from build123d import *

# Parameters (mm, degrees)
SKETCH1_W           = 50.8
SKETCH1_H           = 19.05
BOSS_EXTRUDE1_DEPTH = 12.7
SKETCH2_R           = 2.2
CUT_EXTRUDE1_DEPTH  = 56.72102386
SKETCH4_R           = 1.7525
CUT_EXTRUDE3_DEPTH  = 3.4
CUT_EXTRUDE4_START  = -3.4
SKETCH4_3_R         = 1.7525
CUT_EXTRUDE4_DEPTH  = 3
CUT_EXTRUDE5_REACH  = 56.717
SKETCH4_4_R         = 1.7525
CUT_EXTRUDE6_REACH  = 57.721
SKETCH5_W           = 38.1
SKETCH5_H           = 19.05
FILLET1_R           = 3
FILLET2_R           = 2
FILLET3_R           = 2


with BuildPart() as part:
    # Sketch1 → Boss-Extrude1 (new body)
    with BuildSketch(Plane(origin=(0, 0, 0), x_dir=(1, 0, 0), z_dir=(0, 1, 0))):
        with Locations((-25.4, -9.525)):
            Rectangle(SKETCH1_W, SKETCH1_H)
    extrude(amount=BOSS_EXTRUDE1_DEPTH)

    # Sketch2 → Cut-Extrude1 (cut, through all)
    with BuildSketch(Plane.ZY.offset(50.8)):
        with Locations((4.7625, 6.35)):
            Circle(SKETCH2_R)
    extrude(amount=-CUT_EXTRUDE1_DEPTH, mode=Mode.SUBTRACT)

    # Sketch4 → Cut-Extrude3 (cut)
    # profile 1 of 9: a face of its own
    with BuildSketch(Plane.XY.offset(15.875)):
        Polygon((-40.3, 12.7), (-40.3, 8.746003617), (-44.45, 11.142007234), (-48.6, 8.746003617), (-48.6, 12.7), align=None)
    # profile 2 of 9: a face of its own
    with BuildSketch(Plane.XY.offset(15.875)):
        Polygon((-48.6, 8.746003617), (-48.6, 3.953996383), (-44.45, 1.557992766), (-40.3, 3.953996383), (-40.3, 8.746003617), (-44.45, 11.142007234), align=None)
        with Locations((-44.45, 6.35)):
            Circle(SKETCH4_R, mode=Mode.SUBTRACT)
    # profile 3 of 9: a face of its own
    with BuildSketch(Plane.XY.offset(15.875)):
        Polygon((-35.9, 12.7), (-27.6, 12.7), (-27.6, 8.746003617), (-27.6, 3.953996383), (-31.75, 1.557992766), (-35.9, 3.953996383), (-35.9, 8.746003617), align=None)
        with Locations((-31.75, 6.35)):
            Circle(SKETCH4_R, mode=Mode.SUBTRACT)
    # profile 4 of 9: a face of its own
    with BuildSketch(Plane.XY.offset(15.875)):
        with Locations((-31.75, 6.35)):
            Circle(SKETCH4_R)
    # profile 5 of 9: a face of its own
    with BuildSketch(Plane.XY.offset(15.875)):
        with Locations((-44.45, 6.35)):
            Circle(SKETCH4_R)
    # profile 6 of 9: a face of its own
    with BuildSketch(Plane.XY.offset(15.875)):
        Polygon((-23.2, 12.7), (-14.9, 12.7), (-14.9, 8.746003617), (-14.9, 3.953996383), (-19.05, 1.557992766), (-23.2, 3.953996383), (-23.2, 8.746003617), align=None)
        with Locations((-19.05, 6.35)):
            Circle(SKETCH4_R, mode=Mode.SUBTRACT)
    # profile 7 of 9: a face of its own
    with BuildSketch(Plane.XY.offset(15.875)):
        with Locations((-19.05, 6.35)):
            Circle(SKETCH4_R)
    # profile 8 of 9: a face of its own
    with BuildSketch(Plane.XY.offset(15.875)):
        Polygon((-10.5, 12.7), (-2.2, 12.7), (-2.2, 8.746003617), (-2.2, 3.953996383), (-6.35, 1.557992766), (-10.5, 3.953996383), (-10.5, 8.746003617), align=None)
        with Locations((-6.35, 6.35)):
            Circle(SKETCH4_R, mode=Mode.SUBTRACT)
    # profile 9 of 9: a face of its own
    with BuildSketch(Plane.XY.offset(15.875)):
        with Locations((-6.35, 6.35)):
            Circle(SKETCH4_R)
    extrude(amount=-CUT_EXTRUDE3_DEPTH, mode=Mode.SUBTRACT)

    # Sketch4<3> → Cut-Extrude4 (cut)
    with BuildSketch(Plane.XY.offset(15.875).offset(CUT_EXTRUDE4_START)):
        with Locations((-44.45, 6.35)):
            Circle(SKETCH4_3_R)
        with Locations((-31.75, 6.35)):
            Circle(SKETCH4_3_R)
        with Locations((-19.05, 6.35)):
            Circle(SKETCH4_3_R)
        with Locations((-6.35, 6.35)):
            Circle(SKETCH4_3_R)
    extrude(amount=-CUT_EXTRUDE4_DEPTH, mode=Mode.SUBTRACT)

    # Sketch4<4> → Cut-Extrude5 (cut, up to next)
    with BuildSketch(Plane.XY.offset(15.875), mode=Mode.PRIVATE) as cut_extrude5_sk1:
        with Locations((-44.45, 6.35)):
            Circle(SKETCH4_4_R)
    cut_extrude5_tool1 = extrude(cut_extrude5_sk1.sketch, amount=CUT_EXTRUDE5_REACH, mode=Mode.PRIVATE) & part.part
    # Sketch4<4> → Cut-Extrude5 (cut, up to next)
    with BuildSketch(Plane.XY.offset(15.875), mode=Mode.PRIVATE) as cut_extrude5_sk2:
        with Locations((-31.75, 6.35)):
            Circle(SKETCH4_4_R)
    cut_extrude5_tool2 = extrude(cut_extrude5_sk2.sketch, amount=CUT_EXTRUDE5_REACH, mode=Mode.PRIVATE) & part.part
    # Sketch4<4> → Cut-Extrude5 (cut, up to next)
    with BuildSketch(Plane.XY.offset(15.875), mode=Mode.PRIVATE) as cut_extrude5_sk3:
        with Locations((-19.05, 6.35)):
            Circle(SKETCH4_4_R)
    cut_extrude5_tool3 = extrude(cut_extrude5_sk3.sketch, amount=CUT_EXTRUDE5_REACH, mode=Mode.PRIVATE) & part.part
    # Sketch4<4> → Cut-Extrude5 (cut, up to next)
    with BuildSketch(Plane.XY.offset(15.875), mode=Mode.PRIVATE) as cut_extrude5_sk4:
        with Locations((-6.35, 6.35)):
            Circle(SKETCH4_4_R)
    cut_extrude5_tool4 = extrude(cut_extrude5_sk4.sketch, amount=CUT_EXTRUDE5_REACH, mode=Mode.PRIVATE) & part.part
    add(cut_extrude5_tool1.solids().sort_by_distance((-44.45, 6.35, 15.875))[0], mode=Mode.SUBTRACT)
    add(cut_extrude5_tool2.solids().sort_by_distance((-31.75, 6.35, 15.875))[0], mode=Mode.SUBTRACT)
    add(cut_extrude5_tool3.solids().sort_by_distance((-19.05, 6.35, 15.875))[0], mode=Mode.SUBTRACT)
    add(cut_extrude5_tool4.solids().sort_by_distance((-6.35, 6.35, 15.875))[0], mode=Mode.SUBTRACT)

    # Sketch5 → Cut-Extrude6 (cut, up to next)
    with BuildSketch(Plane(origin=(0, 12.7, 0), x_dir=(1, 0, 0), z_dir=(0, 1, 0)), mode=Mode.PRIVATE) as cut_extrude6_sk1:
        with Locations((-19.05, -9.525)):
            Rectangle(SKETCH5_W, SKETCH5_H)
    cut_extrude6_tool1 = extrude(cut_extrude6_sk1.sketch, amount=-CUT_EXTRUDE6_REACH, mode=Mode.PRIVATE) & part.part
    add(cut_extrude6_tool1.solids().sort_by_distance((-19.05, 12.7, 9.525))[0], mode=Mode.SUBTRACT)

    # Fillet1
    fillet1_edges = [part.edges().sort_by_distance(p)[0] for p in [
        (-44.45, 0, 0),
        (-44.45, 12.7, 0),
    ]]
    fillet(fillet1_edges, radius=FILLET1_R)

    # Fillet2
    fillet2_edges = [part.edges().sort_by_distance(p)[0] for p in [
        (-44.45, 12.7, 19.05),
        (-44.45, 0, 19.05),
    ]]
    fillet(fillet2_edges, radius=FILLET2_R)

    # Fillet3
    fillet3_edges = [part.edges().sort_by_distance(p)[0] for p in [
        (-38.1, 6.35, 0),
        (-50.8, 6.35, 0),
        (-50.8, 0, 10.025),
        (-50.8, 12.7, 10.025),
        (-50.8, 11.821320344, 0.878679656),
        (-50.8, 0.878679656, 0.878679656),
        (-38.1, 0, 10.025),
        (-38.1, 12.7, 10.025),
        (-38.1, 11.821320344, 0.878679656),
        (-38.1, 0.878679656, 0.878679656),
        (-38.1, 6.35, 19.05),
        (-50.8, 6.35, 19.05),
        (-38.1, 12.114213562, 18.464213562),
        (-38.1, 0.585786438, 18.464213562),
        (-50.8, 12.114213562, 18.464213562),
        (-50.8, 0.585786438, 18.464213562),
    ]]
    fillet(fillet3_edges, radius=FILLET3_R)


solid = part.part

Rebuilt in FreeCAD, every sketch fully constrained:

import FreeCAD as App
import Part
import Sketcher
Q = App.Units.Quantity


def edges_at(feature, points):
    """Names of the edges that pass closest to the given points."""
    edges = feature.Shape.Edges
    near = lambda p: min(range(len(edges)), key=lambda i: edges[i].distToShape(Part.Vertex(*p))[0])
    return sorted({f"Edge{near(p) + 1}" for p in points})


def add_polygon(sketch, points):
    """Adds a closed chain of lines whose ends are joined by coincident constraints."""
    first, n = sketch.GeometryCount, len(points)
    for a, b in zip(points, points[1:] + points[:1]):
        sketch.addGeometry(Part.LineSegment(App.Vector(*a, 0), App.Vector(*b, 0)), False)
    for i in range(n):
        sketch.addConstraint(Sketcher.Constraint("Coincident", first + i, 2, first + (i + 1) % n, 1))

doc = App.newDocument("Part")
body = doc.addObject("PartDesign::Body", "Body")

# Sketch on XZ plane
sketch1 = body.newObject("Sketcher::SketchObject", "Sketch")
sketch1.AttachmentSupport = (doc.getObject("XZ_Plane"), [""])
sketch1.MapMode = "FlatFace"
add_polygon(sketch1, [(-51, 0), (-51, 19), (0, 19), (0, 0)])  # lines 0-3
sketch1.addConstraint([
    Sketcher.Constraint("Vertical", 0),
    Sketcher.Constraint("Horizontal", 1),
    Sketcher.Constraint("Vertical", 2),
    Sketcher.Constraint("Horizontal", 3),
    Sketcher.Constraint("Coincident", 2, 2, -1, 1),
    Sketcher.Constraint("DistanceX", 1, 1, 1, 2, Q("50.8 mm")),
    Sketcher.Constraint("DistanceY", 0, 1, 0, 2, Q("19.05 mm")),
])
pad1 = body.newObject("PartDesign::Pad", "Pad")
pad1.Profile = sketch1
pad1.Length = 12.7
pad1.Reversed = True

# Sketch on YZ plane
sketch2 = body.newObject("Sketcher::SketchObject", "Sketch001")
sketch2.AttachmentSupport = (doc.getObject("YZ_Plane"), [""])
sketch2.MapMode = "FlatFace"
sketch2.AttachmentOffset = App.Placement(App.Vector(0, 0, -50.8), App.Rotation())
sketch2.addGeometry(Part.Circle(App.Vector(6.3, 4.8, 0), App.Vector(0, 0, 1), 2.2), False)
sketch2.addConstraint([
    Sketcher.Constraint("Diameter", 0, Q("4.4 mm")),
    Sketcher.Constraint("DistanceX", -1, 1, 0, 3, Q("6.35 mm")),
    Sketcher.Constraint("DistanceY", -1, 1, 0, 3, Q("4.7625 mm")),
])
pocket1 = body.newObject("PartDesign::Pocket", "Pocket")
pocket1.Profile = sketch2
pocket1.Type = "ThroughAll"
pocket1.Reversed = True

# Sketch on XY plane
sketch3 = body.newObject("Sketcher::SketchObject", "Sketch002")
sketch3.AttachmentSupport = (doc.getObject("XY_Plane"), [""])
sketch3.MapMode = "FlatFace"
sketch3.AttachmentOffset = App.Placement(App.Vector(0, 0, 15.875), App.Rotation())
add_polygon(sketch3, [(-40.3, 4), (-40.3, 12.7), (-48.6, 12.7), (-48.6, 4), (-44.5, 1.6)])  # lines 0-4
add_polygon(sketch3, [(-27.6, 12.7), (-35.9, 12.7), (-35.9, 4), (-31.8, 1.6), (-27.6, 4)])  # lines 5-9
add_polygon(sketch3, [(-14.9, 12.7), (-23.2, 12.7), (-23.2, 4), (-19.1, 1.6), (-14.9, 4)])  # lines 10-14
add_polygon(sketch3, [(-2.2, 12.7), (-10.5, 12.7), (-10.5, 4), (-6.3, 1.6), (-2.2, 4)])  # lines 15-19
sketch3.addConstraint([
    Sketcher.Constraint("Vertical", 0),
    Sketcher.Constraint("Horizontal", 1),
    Sketcher.Constraint("Vertical", 2),
    Sketcher.Constraint("Horizontal", 5),
    Sketcher.Constraint("Vertical", 6),
    Sketcher.Constraint("Vertical", 9),
    Sketcher.Constraint("Horizontal", 10),
    Sketcher.Constraint("Vertical", 11),
    Sketcher.Constraint("Vertical", 14),
    Sketcher.Constraint("Horizontal", 15),
    Sketcher.Constraint("Vertical", 16),
    Sketcher.Constraint("Vertical", 19),
    Sketcher.Constraint("Parallel", 3, 7),
    Sketcher.Constraint("Parallel", 4, 8),
    Sketcher.Constraint("Parallel", 7, 12),
    Sketcher.Constraint("Parallel", 8, 13),
    Sketcher.Constraint("Parallel", 12, 17),
    Sketcher.Constraint("Parallel", 13, 18),
    Sketcher.Constraint("Horizontal", 2, 2, 4, 2),
    Sketcher.Constraint("Horizontal", 1, 2, 5, 2),
    Sketcher.Constraint("Horizontal", 4, 2, 6, 2),
    Sketcher.Constraint("Horizontal", 3, 2, 7, 2),
    Sketcher.Constraint("Horizontal", 6, 2, 8, 2),
    Sketcher.Constraint("Horizontal", 9, 2, 10, 2),
    Sketcher.Constraint("Horizontal", 8, 2, 11, 2),
    Sketcher.Constraint("Horizontal", 7, 2, 12, 2),
    Sketcher.Constraint("Horizontal", 11, 2, 13, 2),
    Sketcher.Constraint("Horizontal", 14, 2, 15, 2),
    Sketcher.Constraint("Horizontal", 13, 2, 16, 2),
    Sketcher.Constraint("Horizontal", 12, 2, 17, 2),
    Sketcher.Constraint("Horizontal", 16, 2, 18, 2),
    Sketcher.Constraint("Equal", 3, 4),
    Sketcher.Constraint("Angle", 3, Q("-30 deg")),
    Sketcher.Constraint("DistanceX", 1, 2, 1, 1, Q("8.3 mm")),
    Sketcher.Constraint("DistanceX", 0, 2, -1, 1, Q("40.3 mm")),
    Sketcher.Constraint("DistanceY", -1, 1, 0, 2, Q("12.7 mm")),
    Sketcher.Constraint("DistanceX", 5, 2, -1, 1, Q("35.9 mm")),
    Sketcher.Constraint("DistanceX", 10, 2, -1, 1, Q("23.2 mm")),
    Sketcher.Constraint("DistanceX", 15, 2, -1, 1, Q("10.5 mm")),
    Sketcher.Constraint("DistanceY", 0, 1, 0, 2, Q("8.746004 mm")),
])
pocket2 = body.newObject("PartDesign::Pocket", "Pocket001")
pocket2.Profile = sketch3
pocket2.Length = 3.4

# Sketch on XY plane
sketch4 = body.newObject("Sketcher::SketchObject", "Sketch003")
sketch4.AttachmentSupport = (doc.getObject("XY_Plane"), [""])
sketch4.MapMode = "FlatFace"
sketch4.AttachmentOffset = App.Placement(App.Vector(0, 0, 12.475), App.Rotation())
sketch4.addGeometry([
    Part.Circle(App.Vector(-44.5, 6.3, 0), App.Vector(0, 0, 1), 1.8),
    Part.Circle(App.Vector(-31.8, 6.3, 0), App.Vector(0, 0, 1), 1.8),
    Part.Circle(App.Vector(-19.1, 6.3, 0), App.Vector(0, 0, 1), 1.8),
    Part.Circle(App.Vector(-6.3, 6.3, 0), App.Vector(0, 0, 1), 1.8),
], False)
sketch4.addConstraint([
    Sketcher.Constraint("Equal", 0, 1),
    Sketcher.Constraint("Equal", 1, 2),
    Sketcher.Constraint("Equal", 2, 3),
    Sketcher.Constraint("Horizontal", 0, 3, 1, 3),
    Sketcher.Constraint("Horizontal", 1, 3, 2, 3),
    Sketcher.Constraint("Horizontal", 2, 3, 3, 3),
    Sketcher.Constraint("Diameter", 0, Q("3.505 mm")),
    Sketcher.Constraint("DistanceX", 0, 3, 1, 3, Q("12.7 mm")),
    Sketcher.Constraint("DistanceX", 1, 3, 2, 3, Q("12.7 mm")),
    Sketcher.Constraint("DistanceX", 2, 3, 3, 3, Q("12.7 mm")),
    Sketcher.Constraint("DistanceX", 0, 3, -1, 1, Q("44.45 mm")),
    Sketcher.Constraint("DistanceY", -1, 1, 0, 3, Q("6.35 mm")),
])
pocket3 = body.newObject("PartDesign::Pocket", "Pocket002")
pocket3.Profile = sketch4
pocket3.Length = 3

# Sketch on XY plane
sketch5 = body.newObject("Sketcher::SketchObject", "Sketch004")
sketch5.AttachmentSupport = (doc.getObject("XY_Plane"), [""])
sketch5.MapMode = "FlatFace"
sketch5.AttachmentOffset = App.Placement(App.Vector(0, 0, 15.875), App.Rotation())
sketch5.addGeometry(Part.Circle(App.Vector(-44.5, 6.3, 0), App.Vector(0, 0, 1), 1.8), False)
sketch5.addConstraint([
    Sketcher.Constraint("Diameter", 0, Q("3.505 mm")),
    Sketcher.Constraint("DistanceX", 0, 3, -1, 1, Q("44.45 mm")),
    Sketcher.Constraint("DistanceY", -1, 1, 0, 3, Q("6.35 mm")),
])
pocket4 = body.newObject("PartDesign::Pocket", "Pocket003")
pocket4.Profile = sketch5
pocket4.Type = "UpToFirst"
pocket4.Reversed = True

# Sketch on XY plane
sketch6 = body.newObject("Sketcher::SketchObject", "Sketch005")
sketch6.AttachmentSupport = (doc.getObject("XY_Plane"), [""])
sketch6.MapMode = "FlatFace"
sketch6.AttachmentOffset = App.Placement(App.Vector(0, 0, 15.875), App.Rotation())
sketch6.addGeometry(Part.Circle(App.Vector(-31.8, 6.3, 0), App.Vector(0, 0, 1), 1.8), False)
sketch6.addConstraint([
    Sketcher.Constraint("Diameter", 0, Q("3.505 mm")),
    Sketcher.Constraint("DistanceX", 0, 3, -1, 1, Q("31.75 mm")),
    Sketcher.Constraint("DistanceY", -1, 1, 0, 3, Q("6.35 mm")),
])
pocket5 = body.newObject("PartDesign::Pocket", "Pocket004")
pocket5.Profile = sketch6
pocket5.Type = "UpToFirst"
pocket5.Reversed = True

# Sketch on XY plane
sketch7 = body.newObject("Sketcher::SketchObject", "Sketch006")
sketch7.AttachmentSupport = (doc.getObject("XY_Plane"), [""])
sketch7.MapMode = "FlatFace"
sketch7.AttachmentOffset = App.Placement(App.Vector(0, 0, 15.875), App.Rotation())
sketch7.addGeometry(Part.Circle(App.Vector(-19.1, 6.3, 0), App.Vector(0, 0, 1), 1.8), False)
sketch7.addConstraint([
    Sketcher.Constraint("Diameter", 0, Q("3.505 mm")),
    Sketcher.Constraint("DistanceX", 0, 3, -1, 1, Q("19.05 mm")),
    Sketcher.Constraint("DistanceY", -1, 1, 0, 3, Q("6.35 mm")),
])
pocket6 = body.newObject("PartDesign::Pocket", "Pocket005")
pocket6.Profile = sketch7
pocket6.Type = "UpToFirst"
pocket6.Reversed = True

# Sketch on XY plane
sketch8 = body.newObject("Sketcher::SketchObject", "Sketch007")
sketch8.AttachmentSupport = (doc.getObject("XY_Plane"), [""])
sketch8.MapMode = "FlatFace"
sketch8.AttachmentOffset = App.Placement(App.Vector(0, 0, 15.875), App.Rotation())
sketch8.addGeometry(Part.Circle(App.Vector(-6.3, 6.3, 0), App.Vector(0, 0, 1), 1.8), False)
sketch8.addConstraint([
    Sketcher.Constraint("Diameter", 0, Q("3.505 mm")),
    Sketcher.Constraint("DistanceX", 0, 3, -1, 1, Q("6.35 mm")),
    Sketcher.Constraint("DistanceY", -1, 1, 0, 3, Q("6.35 mm")),
])
pocket7 = body.newObject("PartDesign::Pocket", "Pocket006")
pocket7.Profile = sketch8
pocket7.Type = "UpToFirst"
pocket7.Reversed = True

# Sketch on XZ plane
sketch9 = body.newObject("Sketcher::SketchObject", "Sketch008")
sketch9.AttachmentSupport = (doc.getObject("XZ_Plane"), [""])
sketch9.MapMode = "FlatFace"
sketch9.AttachmentOffset = App.Placement(App.Vector(0, 0, -12.7), App.Rotation())
add_polygon(sketch9, [(-38, 0), (-38, 19), (0, 19), (0, 0)])  # lines 0-3
sketch9.addConstraint([
    Sketcher.Constraint("Vertical", 0),
    Sketcher.Constraint("Horizontal", 1),
    Sketcher.Constraint("Vertical", 2),
    Sketcher.Constraint("Horizontal", 3),
    Sketcher.Constraint("Coincident", 2, 2, -1, 1),
    Sketcher.Constraint("DistanceX", 1, 1, 1, 2, Q("38.1 mm")),
    Sketcher.Constraint("DistanceY", 0, 1, 0, 2, Q("19.05 mm")),
])
pocket8 = body.newObject("PartDesign::Pocket", "Pocket007")
pocket8.Profile = sketch9
pocket8.Length = 12.7
pocket8.Reversed = True
doc.recompute()

fillet = body.newObject("PartDesign::Fillet", "Fillet")
fillet.Base = (pocket8, edges_at(pocket8, [(-44.45, 0, 0), (-44.45, 12.7, 0)]))
fillet.Radius = 3
doc.recompute()

fillet2 = body.newObject("PartDesign::Fillet", "Fillet001")
fillet2.Base = (fillet, edges_at(fillet, [(-44.45, 12.7, 19.05), (-44.45, 0, 19.05)]))
fillet2.Radius = 2
doc.recompute()

fillet3 = body.newObject("PartDesign::Fillet", "Fillet002")
fillet3.Base = (fillet2, edges_at(fillet2, [
    (-38.1, 6.35, 0),
    (-50.8, 6.35, 0),
    (-50.8, 0, 10.025),
    (-50.8, 12.7, 10.025),
    (-50.8, 11.821, 0.879),
    (-50.8, 0.879, 0.879),
    (-38.1, 0, 10.025),
    (-38.1, 12.7, 10.025),
    (-38.1, 11.821, 0.879),
    (-38.1, 0.879, 0.879),
    (-38.1, 6.35, 19.05),
    (-50.8, 6.35, 19.05),
    (-38.1, 12.114, 18.464),
    (-38.1, 0.586, 18.464),
    (-50.8, 12.114, 18.464),
    (-50.8, 0.586, 18.464),
]))
fillet3.Radius = 2

doc.recompute()
